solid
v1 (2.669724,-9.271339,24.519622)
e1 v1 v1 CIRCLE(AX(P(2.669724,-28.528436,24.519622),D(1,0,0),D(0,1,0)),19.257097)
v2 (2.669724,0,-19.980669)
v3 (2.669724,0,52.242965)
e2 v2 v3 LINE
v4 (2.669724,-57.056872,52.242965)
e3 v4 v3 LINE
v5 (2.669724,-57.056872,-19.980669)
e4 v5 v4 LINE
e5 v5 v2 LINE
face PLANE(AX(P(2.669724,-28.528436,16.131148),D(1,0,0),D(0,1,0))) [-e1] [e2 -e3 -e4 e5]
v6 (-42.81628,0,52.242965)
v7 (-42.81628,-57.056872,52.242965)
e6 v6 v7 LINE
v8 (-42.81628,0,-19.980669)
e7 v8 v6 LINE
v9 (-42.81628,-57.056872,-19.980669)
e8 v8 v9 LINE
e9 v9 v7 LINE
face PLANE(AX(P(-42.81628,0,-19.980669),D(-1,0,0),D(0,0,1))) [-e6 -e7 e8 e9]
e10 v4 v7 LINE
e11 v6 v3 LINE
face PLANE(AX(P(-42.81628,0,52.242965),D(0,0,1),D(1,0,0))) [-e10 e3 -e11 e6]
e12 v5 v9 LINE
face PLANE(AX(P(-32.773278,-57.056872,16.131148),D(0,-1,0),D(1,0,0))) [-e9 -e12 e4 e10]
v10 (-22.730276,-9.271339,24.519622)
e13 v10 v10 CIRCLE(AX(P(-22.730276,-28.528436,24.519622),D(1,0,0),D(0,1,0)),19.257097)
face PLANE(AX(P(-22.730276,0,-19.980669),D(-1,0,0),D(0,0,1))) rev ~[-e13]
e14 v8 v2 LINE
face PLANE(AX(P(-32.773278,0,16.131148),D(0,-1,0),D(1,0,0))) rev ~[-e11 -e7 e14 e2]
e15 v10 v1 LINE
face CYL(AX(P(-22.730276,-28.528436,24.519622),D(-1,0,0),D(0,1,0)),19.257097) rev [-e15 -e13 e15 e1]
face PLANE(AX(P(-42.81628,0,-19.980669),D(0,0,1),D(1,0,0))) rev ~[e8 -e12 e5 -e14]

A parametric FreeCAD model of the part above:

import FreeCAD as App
import Part
import Sketcher


def add_polygon(sketch, points):
    """Adds a closed chain of lines whose ends are joined by coincident constraints."""
    first, n = sketch.GeometryCount, len(points)
    for a, b in zip(points, points[1:] + points[:1]):
        sketch.addGeometry(Part.LineSegment(App.Vector(*a, 0), App.Vector(*b, 0)), False)
    for i in range(n):
        sketch.addConstraint(Sketcher.Constraint("Coincident", first + i, 2, first + (i + 1) % n, 1))

doc = App.newDocument("Part")
params = doc.addObject("Spreadsheet::Sheet", "Params")
for row, (alias, value) in enumerate([
    ("pad1_length", "57.056872 mm"),
    ("pad2_length", "1 in"),
], start=1):
    params.set(f"A{row}", alias)
    params.set(f"B{row}", "=" + value)
    params.setAlias(f"B{row}", alias)

body = doc.addObject("PartDesign::Body", "Body")

# Sketch on XZ plane
sketch1 = body.newObject("Sketcher::SketchObject", "Sketch")
sketch1.AttachmentSupport = (doc.getObject("XZ_Plane"), [""])
sketch1.MapMode = "FlatFace"
add_polygon(sketch1, [(-43, 52), (-43, -20), (-23, -20), (-23, 52)])  # lines 0-3
sketch1.addConstraint([
    Sketcher.Constraint("Vertical", 0),
    Sketcher.Constraint("Horizontal", 1),
    Sketcher.Constraint("Vertical", 2),
    Sketcher.Constraint("Horizontal", 3),
    Sketcher.Constraint("DistanceX", 1, 1, 1, 2, 20.086005),
    Sketcher.Constraint("DistanceY", 0, 2, 0, 1, 72.223634),
    Sketcher.Constraint("DistanceX", 0, 2, -1, 1, 42.81628),
    Sketcher.Constraint("DistanceY", 0, 2, -1, 1, 19.980669),
])
pad1 = body.newObject("PartDesign::Pad", "Pad")
pad1.Profile = sketch1
pad1.setExpression("Length", "Params.pad1_length")

# Sketch on YZ plane
sketch2 = body.newObject("Sketcher::SketchObject", "Sketch001")
sketch2.AttachmentSupport = (doc.getObject("YZ_Plane"), [""])
sketch2.MapMode = "FlatFace"
sketch2.AttachmentOffset = App.Placement(App.Vector(0, 0, -22.730276), App.Rotation())
add_polygon(sketch2, [(-57, 52), (-57, -20), (0, -20), (0, 52)])  # lines 0-3
sketch2.addGeometry(Part.Circle(App.Vector(-29, 25, 0), App.Vector(0, 0, 1), 19), False)  # 4
sketch2.addConstraint([
    Sketcher.Constraint("Vertical", 0),
    Sketcher.Constraint("Horizontal", 1),
    Sketcher.Constraint("Vertical", 2),
    Sketcher.Constraint("Horizontal", 3),
    Sketcher.Constraint("PointOnObject", 1, 2, -2),
    Sketcher.Constraint("Diameter", 4, 38.514194),
    Sketcher.Constraint("DistanceX", 1, 1, 1, 2, 57.056872),
    Sketcher.Constraint("DistanceY", 0, 2, 0, 1, 72.223634),
    Sketcher.Constraint("DistanceY", -1, 1, 4, 3, 24.519622),
    Sketcher.Constraint("DistanceY", 0, 2, -1, 1, 19.980669),
    Sketcher.Constraint("DistanceX", 4, 3, -1, 1, 28.528436),
])
pad2 = body.newObject("PartDesign::Pad", "Pad001")
pad2.Profile = sketch2
pad2.setExpression("Length", "Params.pad2_length")

doc.recompute()
